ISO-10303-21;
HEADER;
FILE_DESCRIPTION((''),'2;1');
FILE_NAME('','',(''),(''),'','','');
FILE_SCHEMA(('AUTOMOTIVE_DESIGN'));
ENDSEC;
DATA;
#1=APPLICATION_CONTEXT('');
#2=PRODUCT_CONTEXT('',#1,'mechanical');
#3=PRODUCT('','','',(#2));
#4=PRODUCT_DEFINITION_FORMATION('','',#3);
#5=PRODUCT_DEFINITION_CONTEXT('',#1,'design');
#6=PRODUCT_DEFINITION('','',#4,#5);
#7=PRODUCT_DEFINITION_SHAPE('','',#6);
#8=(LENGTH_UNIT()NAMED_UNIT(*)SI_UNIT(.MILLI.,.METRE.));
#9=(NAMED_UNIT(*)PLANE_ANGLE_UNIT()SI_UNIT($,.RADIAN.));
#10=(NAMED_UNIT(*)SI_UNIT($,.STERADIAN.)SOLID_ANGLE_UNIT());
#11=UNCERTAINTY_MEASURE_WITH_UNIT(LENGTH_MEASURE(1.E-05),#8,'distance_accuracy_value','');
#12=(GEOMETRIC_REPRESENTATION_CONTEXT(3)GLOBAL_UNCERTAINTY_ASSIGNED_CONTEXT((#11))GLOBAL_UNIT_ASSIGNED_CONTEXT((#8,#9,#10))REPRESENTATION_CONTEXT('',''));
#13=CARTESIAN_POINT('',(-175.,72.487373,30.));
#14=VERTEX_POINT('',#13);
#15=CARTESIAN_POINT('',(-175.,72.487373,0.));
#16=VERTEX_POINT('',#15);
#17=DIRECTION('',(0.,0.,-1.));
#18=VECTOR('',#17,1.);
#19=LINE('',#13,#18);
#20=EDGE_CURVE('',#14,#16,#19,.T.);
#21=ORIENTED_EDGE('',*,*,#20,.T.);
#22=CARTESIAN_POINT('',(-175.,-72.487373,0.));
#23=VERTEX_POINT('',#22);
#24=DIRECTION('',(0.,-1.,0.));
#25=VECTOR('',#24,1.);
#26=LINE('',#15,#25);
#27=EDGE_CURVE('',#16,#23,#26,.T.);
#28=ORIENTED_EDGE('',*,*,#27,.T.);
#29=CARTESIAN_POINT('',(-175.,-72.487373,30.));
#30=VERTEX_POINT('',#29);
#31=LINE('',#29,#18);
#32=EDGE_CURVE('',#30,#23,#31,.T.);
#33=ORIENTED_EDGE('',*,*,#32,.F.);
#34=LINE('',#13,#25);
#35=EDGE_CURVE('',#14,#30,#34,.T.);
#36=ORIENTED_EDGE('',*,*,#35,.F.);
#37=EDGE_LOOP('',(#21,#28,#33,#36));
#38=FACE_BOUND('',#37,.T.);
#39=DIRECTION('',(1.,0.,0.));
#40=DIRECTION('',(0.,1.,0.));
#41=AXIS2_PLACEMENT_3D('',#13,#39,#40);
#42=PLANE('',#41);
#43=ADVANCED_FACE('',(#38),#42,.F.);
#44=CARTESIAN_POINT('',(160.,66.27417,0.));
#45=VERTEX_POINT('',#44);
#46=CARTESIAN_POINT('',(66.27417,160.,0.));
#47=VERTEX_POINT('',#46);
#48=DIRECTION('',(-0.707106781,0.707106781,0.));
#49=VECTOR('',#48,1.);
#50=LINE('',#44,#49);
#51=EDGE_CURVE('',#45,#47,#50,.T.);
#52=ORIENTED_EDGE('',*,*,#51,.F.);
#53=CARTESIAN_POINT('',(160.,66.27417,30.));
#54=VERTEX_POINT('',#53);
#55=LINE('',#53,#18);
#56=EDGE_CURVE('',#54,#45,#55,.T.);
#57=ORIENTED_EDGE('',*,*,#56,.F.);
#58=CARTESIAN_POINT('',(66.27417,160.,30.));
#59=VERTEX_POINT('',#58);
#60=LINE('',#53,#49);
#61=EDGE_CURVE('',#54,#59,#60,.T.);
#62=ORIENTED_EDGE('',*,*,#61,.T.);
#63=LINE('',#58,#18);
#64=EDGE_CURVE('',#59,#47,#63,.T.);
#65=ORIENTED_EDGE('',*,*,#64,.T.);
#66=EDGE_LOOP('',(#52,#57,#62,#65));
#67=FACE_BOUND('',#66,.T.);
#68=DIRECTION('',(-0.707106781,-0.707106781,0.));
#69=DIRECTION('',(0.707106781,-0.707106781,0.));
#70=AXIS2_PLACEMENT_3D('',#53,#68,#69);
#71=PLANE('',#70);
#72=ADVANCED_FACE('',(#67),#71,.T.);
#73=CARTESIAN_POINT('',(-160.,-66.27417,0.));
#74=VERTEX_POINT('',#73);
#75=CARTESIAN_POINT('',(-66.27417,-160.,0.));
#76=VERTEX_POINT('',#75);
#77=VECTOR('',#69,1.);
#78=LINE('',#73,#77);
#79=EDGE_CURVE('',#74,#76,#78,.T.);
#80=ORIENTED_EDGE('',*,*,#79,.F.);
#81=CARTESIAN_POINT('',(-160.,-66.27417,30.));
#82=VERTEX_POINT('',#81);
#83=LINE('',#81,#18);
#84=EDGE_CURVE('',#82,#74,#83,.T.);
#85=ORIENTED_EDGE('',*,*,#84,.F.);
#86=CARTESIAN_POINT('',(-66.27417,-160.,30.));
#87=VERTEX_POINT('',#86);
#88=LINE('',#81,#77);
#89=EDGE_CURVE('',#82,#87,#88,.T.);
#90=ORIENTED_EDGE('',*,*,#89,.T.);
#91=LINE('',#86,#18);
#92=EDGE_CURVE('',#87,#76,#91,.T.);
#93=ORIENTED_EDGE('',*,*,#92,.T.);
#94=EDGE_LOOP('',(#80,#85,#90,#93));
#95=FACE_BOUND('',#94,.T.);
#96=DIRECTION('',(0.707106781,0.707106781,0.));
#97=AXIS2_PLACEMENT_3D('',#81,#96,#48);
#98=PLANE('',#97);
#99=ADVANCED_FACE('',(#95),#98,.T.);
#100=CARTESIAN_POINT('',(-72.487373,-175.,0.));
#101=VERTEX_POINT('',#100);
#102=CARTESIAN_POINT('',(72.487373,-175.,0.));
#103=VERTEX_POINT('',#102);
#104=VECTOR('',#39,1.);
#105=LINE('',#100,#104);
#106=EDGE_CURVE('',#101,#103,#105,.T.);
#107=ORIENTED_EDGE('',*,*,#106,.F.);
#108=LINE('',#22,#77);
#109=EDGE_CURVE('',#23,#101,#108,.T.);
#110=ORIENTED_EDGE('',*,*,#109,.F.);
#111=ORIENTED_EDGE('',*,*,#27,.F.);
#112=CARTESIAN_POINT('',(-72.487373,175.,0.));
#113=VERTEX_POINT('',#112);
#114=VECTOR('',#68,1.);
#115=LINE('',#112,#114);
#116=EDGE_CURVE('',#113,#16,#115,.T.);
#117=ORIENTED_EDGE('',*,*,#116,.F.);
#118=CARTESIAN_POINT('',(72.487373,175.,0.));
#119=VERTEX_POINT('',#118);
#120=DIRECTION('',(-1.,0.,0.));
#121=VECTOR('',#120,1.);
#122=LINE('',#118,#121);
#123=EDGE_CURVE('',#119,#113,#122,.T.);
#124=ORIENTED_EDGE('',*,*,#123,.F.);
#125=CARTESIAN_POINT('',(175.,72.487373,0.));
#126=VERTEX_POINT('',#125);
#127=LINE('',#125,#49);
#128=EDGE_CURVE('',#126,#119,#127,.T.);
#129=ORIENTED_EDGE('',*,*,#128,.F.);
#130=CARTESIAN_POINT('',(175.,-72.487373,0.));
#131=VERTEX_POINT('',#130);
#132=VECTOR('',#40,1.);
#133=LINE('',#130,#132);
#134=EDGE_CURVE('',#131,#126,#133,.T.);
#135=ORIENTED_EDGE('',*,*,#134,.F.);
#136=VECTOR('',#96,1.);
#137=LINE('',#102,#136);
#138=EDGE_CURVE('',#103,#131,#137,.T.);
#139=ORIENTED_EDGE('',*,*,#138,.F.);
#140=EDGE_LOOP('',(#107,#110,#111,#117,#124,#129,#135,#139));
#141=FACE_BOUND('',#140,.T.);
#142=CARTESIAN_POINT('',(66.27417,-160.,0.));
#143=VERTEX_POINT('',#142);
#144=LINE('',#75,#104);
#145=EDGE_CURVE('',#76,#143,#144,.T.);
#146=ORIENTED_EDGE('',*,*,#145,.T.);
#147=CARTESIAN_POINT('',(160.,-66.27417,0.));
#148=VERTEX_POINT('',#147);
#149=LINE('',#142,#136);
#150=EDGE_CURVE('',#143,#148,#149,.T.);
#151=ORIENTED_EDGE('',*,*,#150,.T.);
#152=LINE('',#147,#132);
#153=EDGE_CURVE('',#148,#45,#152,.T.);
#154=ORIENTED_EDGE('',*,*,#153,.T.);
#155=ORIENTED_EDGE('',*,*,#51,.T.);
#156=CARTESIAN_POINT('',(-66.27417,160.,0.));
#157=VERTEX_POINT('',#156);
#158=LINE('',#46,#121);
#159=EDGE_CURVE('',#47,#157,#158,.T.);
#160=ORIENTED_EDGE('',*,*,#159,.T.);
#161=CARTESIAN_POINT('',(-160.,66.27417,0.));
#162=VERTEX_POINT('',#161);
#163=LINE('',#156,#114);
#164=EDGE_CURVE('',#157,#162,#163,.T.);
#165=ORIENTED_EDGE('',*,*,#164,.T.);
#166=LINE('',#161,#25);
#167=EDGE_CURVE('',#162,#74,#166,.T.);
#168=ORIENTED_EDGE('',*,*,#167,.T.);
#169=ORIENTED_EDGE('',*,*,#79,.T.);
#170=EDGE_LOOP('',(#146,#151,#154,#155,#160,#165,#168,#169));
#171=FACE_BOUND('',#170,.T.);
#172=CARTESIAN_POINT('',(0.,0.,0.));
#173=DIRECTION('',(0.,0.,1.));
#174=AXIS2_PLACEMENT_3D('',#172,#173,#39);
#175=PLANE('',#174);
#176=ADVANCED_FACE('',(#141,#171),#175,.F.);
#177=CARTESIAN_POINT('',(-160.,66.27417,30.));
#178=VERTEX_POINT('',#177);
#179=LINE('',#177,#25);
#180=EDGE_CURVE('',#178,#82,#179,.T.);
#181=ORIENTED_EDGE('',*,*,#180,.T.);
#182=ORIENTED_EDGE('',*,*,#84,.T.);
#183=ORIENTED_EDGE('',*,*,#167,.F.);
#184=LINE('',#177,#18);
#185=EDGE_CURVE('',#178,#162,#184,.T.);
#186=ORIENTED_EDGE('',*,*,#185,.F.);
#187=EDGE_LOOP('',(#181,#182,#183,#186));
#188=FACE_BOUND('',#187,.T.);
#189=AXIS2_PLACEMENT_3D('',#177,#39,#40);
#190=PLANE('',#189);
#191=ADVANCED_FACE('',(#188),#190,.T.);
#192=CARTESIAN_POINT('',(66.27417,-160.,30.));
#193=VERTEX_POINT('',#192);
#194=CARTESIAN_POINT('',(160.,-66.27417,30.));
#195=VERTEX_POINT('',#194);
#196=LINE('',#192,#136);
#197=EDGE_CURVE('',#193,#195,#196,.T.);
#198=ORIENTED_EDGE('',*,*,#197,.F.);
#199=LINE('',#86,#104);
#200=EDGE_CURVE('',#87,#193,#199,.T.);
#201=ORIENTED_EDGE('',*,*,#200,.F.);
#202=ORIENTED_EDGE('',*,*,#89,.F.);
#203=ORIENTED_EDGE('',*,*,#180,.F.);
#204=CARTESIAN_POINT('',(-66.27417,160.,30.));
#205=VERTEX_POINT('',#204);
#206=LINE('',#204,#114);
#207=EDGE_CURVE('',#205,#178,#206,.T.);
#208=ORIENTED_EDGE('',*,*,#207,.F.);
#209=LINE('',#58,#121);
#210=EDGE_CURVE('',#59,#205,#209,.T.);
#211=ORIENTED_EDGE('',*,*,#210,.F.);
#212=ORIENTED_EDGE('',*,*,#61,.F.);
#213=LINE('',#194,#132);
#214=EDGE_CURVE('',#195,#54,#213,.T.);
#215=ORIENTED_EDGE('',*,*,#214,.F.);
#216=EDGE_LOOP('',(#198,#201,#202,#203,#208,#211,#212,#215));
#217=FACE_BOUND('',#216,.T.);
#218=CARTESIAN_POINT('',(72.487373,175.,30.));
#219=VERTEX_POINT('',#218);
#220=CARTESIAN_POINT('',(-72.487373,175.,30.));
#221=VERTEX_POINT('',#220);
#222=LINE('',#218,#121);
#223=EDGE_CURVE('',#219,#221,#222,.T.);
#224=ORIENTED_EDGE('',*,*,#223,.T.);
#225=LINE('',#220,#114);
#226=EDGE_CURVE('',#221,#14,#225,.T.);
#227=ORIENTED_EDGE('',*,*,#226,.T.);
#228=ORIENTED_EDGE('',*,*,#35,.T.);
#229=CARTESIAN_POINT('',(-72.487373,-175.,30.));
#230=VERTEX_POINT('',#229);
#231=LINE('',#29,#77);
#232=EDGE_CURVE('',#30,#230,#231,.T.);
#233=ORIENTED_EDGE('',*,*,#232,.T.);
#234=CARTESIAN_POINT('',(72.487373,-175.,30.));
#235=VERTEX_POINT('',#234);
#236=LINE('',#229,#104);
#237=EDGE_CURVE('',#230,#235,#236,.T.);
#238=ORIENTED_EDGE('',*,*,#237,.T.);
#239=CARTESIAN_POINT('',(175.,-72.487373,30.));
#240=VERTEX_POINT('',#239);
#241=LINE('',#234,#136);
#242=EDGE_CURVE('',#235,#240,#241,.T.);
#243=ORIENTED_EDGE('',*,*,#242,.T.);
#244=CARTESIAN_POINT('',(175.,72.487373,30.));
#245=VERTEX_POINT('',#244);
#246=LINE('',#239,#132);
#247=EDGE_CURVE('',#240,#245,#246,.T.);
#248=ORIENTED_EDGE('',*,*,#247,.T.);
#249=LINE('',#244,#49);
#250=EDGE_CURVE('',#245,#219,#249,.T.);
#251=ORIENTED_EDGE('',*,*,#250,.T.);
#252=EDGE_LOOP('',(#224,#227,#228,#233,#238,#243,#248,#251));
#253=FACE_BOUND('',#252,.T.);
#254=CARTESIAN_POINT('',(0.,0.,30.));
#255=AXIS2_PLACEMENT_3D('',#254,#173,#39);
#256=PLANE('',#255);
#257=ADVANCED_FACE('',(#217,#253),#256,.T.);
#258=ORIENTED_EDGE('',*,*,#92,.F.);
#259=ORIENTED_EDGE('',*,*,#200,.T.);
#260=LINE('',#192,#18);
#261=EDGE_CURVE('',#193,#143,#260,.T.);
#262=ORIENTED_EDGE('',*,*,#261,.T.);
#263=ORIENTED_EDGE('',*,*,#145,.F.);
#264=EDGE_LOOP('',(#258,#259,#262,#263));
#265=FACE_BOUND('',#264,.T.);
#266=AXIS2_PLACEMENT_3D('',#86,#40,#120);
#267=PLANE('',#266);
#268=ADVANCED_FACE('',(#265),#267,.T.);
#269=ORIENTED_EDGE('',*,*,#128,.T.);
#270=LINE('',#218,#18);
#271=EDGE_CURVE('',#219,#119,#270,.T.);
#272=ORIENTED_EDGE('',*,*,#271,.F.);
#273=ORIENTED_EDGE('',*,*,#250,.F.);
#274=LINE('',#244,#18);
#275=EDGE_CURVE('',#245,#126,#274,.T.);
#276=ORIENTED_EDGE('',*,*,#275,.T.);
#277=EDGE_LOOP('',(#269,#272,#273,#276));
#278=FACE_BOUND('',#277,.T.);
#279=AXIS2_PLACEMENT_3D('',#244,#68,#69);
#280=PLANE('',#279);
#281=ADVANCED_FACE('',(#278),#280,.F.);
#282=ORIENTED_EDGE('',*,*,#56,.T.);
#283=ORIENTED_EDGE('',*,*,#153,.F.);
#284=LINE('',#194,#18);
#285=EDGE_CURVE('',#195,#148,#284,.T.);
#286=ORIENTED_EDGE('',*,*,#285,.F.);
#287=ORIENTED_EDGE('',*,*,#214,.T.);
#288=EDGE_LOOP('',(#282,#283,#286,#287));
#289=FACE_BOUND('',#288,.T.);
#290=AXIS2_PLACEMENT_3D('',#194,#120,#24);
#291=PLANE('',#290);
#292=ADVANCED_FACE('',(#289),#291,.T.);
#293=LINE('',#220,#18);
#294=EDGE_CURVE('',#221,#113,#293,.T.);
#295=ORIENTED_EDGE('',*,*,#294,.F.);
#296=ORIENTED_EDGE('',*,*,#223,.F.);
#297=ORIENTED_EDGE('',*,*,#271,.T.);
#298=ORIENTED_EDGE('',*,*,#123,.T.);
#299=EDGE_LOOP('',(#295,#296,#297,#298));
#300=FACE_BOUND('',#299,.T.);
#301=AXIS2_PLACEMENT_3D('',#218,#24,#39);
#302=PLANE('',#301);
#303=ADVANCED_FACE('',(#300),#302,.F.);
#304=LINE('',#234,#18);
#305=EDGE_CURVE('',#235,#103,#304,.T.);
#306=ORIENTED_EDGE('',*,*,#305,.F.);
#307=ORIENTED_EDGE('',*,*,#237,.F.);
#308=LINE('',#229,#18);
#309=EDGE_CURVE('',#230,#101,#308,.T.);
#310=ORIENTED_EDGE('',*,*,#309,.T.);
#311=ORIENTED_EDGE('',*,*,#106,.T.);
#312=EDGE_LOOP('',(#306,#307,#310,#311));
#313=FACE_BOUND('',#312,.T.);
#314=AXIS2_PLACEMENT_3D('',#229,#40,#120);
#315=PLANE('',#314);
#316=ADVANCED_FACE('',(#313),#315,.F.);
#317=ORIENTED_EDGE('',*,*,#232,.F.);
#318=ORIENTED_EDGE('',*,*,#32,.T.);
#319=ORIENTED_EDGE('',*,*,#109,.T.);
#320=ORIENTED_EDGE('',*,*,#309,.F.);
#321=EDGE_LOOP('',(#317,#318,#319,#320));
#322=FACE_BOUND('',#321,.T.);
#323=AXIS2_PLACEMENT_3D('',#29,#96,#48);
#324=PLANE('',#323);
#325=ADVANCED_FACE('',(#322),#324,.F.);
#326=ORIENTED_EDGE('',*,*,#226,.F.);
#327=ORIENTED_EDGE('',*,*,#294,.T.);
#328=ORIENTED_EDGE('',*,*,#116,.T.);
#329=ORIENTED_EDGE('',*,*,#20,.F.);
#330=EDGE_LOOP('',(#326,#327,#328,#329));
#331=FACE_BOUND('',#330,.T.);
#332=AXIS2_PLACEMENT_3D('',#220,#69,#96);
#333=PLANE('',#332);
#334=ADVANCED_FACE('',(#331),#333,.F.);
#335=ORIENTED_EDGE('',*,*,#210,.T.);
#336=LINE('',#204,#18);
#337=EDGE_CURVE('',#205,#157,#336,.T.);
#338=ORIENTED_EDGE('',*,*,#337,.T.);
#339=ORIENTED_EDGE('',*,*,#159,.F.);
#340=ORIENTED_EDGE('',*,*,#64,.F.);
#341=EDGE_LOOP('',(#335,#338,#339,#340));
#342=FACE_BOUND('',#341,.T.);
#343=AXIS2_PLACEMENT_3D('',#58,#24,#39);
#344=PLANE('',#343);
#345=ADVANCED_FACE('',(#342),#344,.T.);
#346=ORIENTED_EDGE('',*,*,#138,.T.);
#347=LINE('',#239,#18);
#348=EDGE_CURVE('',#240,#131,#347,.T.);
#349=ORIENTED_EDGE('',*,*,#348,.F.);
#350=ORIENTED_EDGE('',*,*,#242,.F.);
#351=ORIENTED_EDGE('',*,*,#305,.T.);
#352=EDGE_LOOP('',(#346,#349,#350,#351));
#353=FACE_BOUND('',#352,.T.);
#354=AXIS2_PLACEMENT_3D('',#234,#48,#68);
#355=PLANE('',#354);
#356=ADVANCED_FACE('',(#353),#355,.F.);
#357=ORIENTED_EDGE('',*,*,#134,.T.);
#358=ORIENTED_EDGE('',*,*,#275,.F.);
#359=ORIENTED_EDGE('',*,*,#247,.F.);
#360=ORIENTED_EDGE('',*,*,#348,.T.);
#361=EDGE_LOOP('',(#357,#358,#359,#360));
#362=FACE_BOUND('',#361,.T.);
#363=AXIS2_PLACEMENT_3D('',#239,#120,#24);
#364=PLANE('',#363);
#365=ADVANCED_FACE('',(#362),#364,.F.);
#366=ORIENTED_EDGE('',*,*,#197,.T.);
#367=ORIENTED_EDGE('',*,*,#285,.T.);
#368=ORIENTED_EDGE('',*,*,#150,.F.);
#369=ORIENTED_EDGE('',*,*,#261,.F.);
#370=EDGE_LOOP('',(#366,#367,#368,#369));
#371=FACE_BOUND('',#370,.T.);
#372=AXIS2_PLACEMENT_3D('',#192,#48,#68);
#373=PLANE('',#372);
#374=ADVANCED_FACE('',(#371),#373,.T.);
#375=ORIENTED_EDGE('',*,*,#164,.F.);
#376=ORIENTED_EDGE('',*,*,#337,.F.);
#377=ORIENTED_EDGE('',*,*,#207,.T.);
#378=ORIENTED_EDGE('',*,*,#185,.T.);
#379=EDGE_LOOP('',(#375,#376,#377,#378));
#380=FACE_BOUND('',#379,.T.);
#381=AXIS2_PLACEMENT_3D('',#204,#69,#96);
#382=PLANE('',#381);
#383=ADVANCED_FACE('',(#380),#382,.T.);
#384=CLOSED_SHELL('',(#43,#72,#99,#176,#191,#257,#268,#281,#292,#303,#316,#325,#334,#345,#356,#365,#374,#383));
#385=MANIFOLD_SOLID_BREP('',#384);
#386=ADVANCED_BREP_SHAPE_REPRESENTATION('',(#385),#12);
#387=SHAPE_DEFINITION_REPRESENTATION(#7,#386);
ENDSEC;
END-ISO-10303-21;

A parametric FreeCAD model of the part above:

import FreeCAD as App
import Part
import Sketcher
from FreeCAD import Vector


def add_polygon(sketch, points):
    """Adds a closed chain of lines whose ends are joined by coincident constraints."""
    first, n = sketch.GeometryCount, len(points)
    for a, b in zip(points, points[1:] + points[:1]):
        sketch.addGeometry(Part.LineSegment(App.Vector(*a, 0), App.Vector(*b, 0)), False)
    for i in range(n):
        sketch.addConstraint(Sketcher.Constraint("Coincident", first + i, 2, first + (i + 1) % n, 1))

doc = App.newDocument("Part")
params = doc.addObject("Spreadsheet::Sheet", "Params")
for row, (alias, value) in enumerate([
    ("pad1_length", "30 mm"),
], start=1):
    params.set(f"A{row}", alias)
    params.set(f"B{row}", "=" + value)
    params.setAlias(f"B{row}", alias)

body = doc.addObject("PartDesign::Body", "Body")

# Sketch on XY plane
sketch1 = doc.addObject("Sketcher::SketchObject", "Sketch")
body.addObject(sketch1)
sketch1.AttachmentSupport = (doc.XY_Plane, [""])
sketch1.MapMode = "FlatFace"
add_polygon(sketch1, [(175, 72.487373), (72.487373, 175), (-72.487373, 175), (-175, 72.487373), (-175, -72.487373), (-72.487373, -175), (72.487373, -175), (175, -72.487373)])  # lines 0-7
add_polygon(sketch1, [(66.27417, 160), (160, 66.27417), (160, -66.27417), (66.27417, -160), (-66.27417, -160), (-160, -66.27417), (-160, 66.27417), (-66.27417, 160)])  # lines 8-15
sketch1.addConstraint([
    Sketcher.Constraint("Horizontal", 1),
    Sketcher.Constraint("Vertical", 3),
    Sketcher.Constraint("Horizontal", 5),
    Sketcher.Constraint("Vertical", 7),
    Sketcher.Constraint("Vertical", 9),
    Sketcher.Constraint("Horizontal", 11),
    Sketcher.Constraint("Vertical", 13),
    Sketcher.Constraint("Horizontal", 15),
    Sketcher.Constraint("Symmetric", 0, 2, 4, 2, -1, 1),
    Sketcher.Constraint("Symmetric", 2, 2, 6, 2, -1, 1),
    Sketcher.Constraint("Symmetric", 8, 2, 12, 2, -1, 1),
    Sketcher.Constraint("Symmetric", 10, 2, 14, 2, -1, 1),
    Sketcher.Constraint("Perpendicular", 0, 2),
    Sketcher.Constraint("Perpendicular", 2, 4),
    Sketcher.Constraint("Perpendicular", 4, 6),
    Sketcher.Constraint("Perpendicular", 6, 8),
    Sketcher.Constraint("Perpendicular", 8, 10),
    Sketcher.Constraint("Perpendicular", 10, 12),
    Sketcher.Constraint("Perpendicular", 12, 14),
    Sketcher.Constraint("Horizontal", 3, 2, 6, 2),
    Sketcher.Constraint("Horizontal", 9, 2, 12, 2),
    Sketcher.Constraint("Vertical", 1, 2, 4, 2),
    Sketcher.Constraint("Equal", 5, 3),
    Sketcher.Constraint("Equal", 15, 9),
    Sketcher.Constraint("DistanceY", -1, 1, 0, 2, 175.0),
    Sketcher.Constraint("DistanceX", -1, 1, 8, 2, 160.0),
    Sketcher.Constraint("DistanceX", 11, 2, 11, 1, 132.54834),
    Sketcher.Constraint("DistanceX", 1, 2, 1, 1, 144.974747),
])
pad1 = doc.addObject("PartDesign::Pad", "Pad")
body.addObject(pad1)
pad1.Profile = sketch1
pad1.setExpression("Length", "Params.pad1_length")

doc.recompute()
